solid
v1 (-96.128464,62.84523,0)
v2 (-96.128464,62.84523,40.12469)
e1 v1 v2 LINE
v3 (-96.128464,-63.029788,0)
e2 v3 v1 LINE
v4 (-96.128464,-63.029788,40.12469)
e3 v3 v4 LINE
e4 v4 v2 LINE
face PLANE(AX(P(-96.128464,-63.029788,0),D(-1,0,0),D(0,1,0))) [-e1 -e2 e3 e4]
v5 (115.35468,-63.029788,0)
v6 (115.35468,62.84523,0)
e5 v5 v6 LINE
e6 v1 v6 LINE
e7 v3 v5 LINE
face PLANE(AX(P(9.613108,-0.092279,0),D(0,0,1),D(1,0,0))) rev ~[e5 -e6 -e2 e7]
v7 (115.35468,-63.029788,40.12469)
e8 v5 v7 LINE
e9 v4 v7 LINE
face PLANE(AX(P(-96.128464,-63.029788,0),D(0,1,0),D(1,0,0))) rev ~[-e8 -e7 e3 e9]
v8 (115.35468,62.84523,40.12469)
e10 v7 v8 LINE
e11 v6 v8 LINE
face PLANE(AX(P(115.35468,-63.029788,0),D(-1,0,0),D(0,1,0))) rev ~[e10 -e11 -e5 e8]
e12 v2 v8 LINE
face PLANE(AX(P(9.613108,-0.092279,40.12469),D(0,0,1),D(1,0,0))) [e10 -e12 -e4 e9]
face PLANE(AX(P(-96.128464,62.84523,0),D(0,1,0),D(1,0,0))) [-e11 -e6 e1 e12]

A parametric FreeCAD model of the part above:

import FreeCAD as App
import Part
import Sketcher
Q = App.Units.Quantity


def add_polygon(sketch, points):
    """Adds a closed chain of lines whose ends are joined by coincident constraints."""
    first, n = sketch.GeometryCount, len(points)
    for a, b in zip(points, points[1:] + points[:1]):
        sketch.addGeometry(Part.LineSegment(App.Vector(*a, 0), App.Vector(*b, 0)), False)
    for i in range(n):
        sketch.addConstraint(Sketcher.Constraint("Coincident", first + i, 2, first + (i + 1) % n, 1))

doc = App.newDocument("Part")
body = doc.addObject("PartDesign::Body", "Body")

# Sketch on XY plane
sketch1 = body.newObject("Sketcher::SketchObject", "Sketch")
sketch1.AttachmentSupport = (doc.getObject("XY_Plane"), [""])
sketch1.MapMode = "FlatFace"
add_polygon(sketch1, [(0, 45.7), (-4.1, 45.7), (-4.1, -45.7), (0, -45.7), (0, -38.9), (66, -38.9), (66, 38.9), (0, 38.9)])  # lines 0-7
sketch1.addConstraint([
    Sketcher.Constraint("Horizontal", 0),
    Sketcher.Constraint("Horizontal", 2),
    Sketcher.Constraint("Vertical", 3),
    Sketcher.Constraint("Horizontal", 4),
    Sketcher.Constraint("Vertical", 5),
    Sketcher.Constraint("Horizontal", 6),
    Sketcher.Constraint("Vertical", 7),
    Sketcher.Constraint("PointOnObject", 2, 2, -2),
    Sketcher.Constraint("PointOnObject", 6, 2, -2),
    Sketcher.Constraint("DistanceY", 7, 1, 7, 2, 6.858222),
    Sketcher.Constraint("DistanceX", 0, 2, 0, 1, 4.140248),
    Sketcher.Constraint("DistanceX", 2, 1, 2, 2, 4.144755),
    Sketcher.Constraint("DistanceX", 4, 1, 4, 2, 66.039294),
    Sketcher.Constraint("DistanceY", 3, 1, 3, 2, 6.858368),
    Sketcher.Constraint("DistanceY", 5, 1, 5, 2, 77.724203),
    Sketcher.Constraint("DistanceY", 3, 2, -1, 1, 38.86215),
])
pad1 = body.newObject("PartDesign::Pad", "Pad")
pad1.Profile = sketch1
pad1.Length = Q("0.8 in")

# Sketch on XY plane
sketch2 = body.newObject("Sketcher::SketchObject", "Sketch001")
sketch2.AttachmentSupport = (doc.getObject("XY_Plane"), [""])
sketch2.MapMode = "FlatFace"
add_polygon(sketch2, [(-21, -46), (-4, -46), (-4, 46), (-21, 46), (-21, 56), (-46, 56), (-46, 46), (-66, 46), (-66, -46), (-46, -46), (-46, -56), (-21, -56)])  # lines 0-11
sketch2.addConstraint([
    Sketcher.Constraint("Horizontal", 2),
    Sketcher.Constraint("Vertical", 3),
    Sketcher.Constraint("Horizontal", 4),
    Sketcher.Constraint("Perpendicular", 0, 1),
    Sketcher.Constraint("Parallel", 1, 5),
    Sketcher.Constraint("Perpendicular", 5, 6),
    Sketcher.Constraint("Perpendicular", 6, 7),
    Sketcher.Constraint("Perpendicular", 7, 8),
    Sketcher.Constraint("Perpendicular", 8, 9),
    Sketcher.Constraint("Perpendicular", 9, 10),
    Sketcher.Constraint("Perpendicular", 10, 11),
    Sketcher.Constraint("Horizontal", 2, 2, 5, 2),
    Sketcher.Constraint("Equal", 5, 9),
    Sketcher.Constraint("Equal", 9, 11),
    Sketcher.Constraint("DistanceX", 4, 2, 4, 1, Q("1 in")),
    Sketcher.Constraint("Distance", 10, Q("1 in")),
    Sketcher.Constraint("DistanceY", 3, 1, 3, 2, Q("0.4 in")),
    Sketcher.Constraint("Distance", 8, Q("0.77 in")),
    Sketcher.Constraint("DistanceX", 2, 2, 2, 1, Q("0.667 in")),
    Sketcher.Constraint("DistanceX", 6, 2, 4, 2, Q("0.77 in")),
    Sketcher.Constraint("Distance", 6, 19.5575),
    Sketcher.Constraint("DistanceX", 2, 2, -1, 1, 21.082048),
    Sketcher.Constraint("DistanceY", -1, 1, 6, 2, 45.72124),
    Sketcher.Constraint("DistanceY", 8, 2, -1, 1, 45.71843),
])
pad2 = body.newObject("PartDesign::Pad", "Pad001")
pad2.Profile = sketch2
pad2.Length = Q("1.2 in")

# Sketch on XY plane
sketch3 = body.newObject("Sketcher::SketchObject", "Sketch002")
sketch3.AttachmentSupport = (doc.getObject("XY_Plane"), [""])
sketch3.MapMode = "FlatFace"
add_polygon(sketch3, [(-96, 63), (-96, -63), (115, -63), (115, 63)])  # lines 0-3
sketch3.addConstraint([
    Sketcher.Constraint("Vertical", 0),
    Sketcher.Constraint("Horizontal", 1),
    Sketcher.Constraint("Vertical", 2),
    Sketcher.Constraint("Horizontal", 3),
    Sketcher.Constraint("DistanceY", 0, 2, 0, 1, 125.875018),
    Sketcher.Constraint("DistanceX", 1, 1, 1, 2, 211.483144),
    Sketcher.Constraint("DistanceY", 0, 2, -1, 1, 63.029788),
    Sketcher.Constraint("DistanceX", -1, 1, 1, 2, 115.35468),
])
pad3 = body.newObject("PartDesign::Pad", "Pad002")
pad3.Profile = sketch3
pad3.Length = 40.12469

doc.recompute()
